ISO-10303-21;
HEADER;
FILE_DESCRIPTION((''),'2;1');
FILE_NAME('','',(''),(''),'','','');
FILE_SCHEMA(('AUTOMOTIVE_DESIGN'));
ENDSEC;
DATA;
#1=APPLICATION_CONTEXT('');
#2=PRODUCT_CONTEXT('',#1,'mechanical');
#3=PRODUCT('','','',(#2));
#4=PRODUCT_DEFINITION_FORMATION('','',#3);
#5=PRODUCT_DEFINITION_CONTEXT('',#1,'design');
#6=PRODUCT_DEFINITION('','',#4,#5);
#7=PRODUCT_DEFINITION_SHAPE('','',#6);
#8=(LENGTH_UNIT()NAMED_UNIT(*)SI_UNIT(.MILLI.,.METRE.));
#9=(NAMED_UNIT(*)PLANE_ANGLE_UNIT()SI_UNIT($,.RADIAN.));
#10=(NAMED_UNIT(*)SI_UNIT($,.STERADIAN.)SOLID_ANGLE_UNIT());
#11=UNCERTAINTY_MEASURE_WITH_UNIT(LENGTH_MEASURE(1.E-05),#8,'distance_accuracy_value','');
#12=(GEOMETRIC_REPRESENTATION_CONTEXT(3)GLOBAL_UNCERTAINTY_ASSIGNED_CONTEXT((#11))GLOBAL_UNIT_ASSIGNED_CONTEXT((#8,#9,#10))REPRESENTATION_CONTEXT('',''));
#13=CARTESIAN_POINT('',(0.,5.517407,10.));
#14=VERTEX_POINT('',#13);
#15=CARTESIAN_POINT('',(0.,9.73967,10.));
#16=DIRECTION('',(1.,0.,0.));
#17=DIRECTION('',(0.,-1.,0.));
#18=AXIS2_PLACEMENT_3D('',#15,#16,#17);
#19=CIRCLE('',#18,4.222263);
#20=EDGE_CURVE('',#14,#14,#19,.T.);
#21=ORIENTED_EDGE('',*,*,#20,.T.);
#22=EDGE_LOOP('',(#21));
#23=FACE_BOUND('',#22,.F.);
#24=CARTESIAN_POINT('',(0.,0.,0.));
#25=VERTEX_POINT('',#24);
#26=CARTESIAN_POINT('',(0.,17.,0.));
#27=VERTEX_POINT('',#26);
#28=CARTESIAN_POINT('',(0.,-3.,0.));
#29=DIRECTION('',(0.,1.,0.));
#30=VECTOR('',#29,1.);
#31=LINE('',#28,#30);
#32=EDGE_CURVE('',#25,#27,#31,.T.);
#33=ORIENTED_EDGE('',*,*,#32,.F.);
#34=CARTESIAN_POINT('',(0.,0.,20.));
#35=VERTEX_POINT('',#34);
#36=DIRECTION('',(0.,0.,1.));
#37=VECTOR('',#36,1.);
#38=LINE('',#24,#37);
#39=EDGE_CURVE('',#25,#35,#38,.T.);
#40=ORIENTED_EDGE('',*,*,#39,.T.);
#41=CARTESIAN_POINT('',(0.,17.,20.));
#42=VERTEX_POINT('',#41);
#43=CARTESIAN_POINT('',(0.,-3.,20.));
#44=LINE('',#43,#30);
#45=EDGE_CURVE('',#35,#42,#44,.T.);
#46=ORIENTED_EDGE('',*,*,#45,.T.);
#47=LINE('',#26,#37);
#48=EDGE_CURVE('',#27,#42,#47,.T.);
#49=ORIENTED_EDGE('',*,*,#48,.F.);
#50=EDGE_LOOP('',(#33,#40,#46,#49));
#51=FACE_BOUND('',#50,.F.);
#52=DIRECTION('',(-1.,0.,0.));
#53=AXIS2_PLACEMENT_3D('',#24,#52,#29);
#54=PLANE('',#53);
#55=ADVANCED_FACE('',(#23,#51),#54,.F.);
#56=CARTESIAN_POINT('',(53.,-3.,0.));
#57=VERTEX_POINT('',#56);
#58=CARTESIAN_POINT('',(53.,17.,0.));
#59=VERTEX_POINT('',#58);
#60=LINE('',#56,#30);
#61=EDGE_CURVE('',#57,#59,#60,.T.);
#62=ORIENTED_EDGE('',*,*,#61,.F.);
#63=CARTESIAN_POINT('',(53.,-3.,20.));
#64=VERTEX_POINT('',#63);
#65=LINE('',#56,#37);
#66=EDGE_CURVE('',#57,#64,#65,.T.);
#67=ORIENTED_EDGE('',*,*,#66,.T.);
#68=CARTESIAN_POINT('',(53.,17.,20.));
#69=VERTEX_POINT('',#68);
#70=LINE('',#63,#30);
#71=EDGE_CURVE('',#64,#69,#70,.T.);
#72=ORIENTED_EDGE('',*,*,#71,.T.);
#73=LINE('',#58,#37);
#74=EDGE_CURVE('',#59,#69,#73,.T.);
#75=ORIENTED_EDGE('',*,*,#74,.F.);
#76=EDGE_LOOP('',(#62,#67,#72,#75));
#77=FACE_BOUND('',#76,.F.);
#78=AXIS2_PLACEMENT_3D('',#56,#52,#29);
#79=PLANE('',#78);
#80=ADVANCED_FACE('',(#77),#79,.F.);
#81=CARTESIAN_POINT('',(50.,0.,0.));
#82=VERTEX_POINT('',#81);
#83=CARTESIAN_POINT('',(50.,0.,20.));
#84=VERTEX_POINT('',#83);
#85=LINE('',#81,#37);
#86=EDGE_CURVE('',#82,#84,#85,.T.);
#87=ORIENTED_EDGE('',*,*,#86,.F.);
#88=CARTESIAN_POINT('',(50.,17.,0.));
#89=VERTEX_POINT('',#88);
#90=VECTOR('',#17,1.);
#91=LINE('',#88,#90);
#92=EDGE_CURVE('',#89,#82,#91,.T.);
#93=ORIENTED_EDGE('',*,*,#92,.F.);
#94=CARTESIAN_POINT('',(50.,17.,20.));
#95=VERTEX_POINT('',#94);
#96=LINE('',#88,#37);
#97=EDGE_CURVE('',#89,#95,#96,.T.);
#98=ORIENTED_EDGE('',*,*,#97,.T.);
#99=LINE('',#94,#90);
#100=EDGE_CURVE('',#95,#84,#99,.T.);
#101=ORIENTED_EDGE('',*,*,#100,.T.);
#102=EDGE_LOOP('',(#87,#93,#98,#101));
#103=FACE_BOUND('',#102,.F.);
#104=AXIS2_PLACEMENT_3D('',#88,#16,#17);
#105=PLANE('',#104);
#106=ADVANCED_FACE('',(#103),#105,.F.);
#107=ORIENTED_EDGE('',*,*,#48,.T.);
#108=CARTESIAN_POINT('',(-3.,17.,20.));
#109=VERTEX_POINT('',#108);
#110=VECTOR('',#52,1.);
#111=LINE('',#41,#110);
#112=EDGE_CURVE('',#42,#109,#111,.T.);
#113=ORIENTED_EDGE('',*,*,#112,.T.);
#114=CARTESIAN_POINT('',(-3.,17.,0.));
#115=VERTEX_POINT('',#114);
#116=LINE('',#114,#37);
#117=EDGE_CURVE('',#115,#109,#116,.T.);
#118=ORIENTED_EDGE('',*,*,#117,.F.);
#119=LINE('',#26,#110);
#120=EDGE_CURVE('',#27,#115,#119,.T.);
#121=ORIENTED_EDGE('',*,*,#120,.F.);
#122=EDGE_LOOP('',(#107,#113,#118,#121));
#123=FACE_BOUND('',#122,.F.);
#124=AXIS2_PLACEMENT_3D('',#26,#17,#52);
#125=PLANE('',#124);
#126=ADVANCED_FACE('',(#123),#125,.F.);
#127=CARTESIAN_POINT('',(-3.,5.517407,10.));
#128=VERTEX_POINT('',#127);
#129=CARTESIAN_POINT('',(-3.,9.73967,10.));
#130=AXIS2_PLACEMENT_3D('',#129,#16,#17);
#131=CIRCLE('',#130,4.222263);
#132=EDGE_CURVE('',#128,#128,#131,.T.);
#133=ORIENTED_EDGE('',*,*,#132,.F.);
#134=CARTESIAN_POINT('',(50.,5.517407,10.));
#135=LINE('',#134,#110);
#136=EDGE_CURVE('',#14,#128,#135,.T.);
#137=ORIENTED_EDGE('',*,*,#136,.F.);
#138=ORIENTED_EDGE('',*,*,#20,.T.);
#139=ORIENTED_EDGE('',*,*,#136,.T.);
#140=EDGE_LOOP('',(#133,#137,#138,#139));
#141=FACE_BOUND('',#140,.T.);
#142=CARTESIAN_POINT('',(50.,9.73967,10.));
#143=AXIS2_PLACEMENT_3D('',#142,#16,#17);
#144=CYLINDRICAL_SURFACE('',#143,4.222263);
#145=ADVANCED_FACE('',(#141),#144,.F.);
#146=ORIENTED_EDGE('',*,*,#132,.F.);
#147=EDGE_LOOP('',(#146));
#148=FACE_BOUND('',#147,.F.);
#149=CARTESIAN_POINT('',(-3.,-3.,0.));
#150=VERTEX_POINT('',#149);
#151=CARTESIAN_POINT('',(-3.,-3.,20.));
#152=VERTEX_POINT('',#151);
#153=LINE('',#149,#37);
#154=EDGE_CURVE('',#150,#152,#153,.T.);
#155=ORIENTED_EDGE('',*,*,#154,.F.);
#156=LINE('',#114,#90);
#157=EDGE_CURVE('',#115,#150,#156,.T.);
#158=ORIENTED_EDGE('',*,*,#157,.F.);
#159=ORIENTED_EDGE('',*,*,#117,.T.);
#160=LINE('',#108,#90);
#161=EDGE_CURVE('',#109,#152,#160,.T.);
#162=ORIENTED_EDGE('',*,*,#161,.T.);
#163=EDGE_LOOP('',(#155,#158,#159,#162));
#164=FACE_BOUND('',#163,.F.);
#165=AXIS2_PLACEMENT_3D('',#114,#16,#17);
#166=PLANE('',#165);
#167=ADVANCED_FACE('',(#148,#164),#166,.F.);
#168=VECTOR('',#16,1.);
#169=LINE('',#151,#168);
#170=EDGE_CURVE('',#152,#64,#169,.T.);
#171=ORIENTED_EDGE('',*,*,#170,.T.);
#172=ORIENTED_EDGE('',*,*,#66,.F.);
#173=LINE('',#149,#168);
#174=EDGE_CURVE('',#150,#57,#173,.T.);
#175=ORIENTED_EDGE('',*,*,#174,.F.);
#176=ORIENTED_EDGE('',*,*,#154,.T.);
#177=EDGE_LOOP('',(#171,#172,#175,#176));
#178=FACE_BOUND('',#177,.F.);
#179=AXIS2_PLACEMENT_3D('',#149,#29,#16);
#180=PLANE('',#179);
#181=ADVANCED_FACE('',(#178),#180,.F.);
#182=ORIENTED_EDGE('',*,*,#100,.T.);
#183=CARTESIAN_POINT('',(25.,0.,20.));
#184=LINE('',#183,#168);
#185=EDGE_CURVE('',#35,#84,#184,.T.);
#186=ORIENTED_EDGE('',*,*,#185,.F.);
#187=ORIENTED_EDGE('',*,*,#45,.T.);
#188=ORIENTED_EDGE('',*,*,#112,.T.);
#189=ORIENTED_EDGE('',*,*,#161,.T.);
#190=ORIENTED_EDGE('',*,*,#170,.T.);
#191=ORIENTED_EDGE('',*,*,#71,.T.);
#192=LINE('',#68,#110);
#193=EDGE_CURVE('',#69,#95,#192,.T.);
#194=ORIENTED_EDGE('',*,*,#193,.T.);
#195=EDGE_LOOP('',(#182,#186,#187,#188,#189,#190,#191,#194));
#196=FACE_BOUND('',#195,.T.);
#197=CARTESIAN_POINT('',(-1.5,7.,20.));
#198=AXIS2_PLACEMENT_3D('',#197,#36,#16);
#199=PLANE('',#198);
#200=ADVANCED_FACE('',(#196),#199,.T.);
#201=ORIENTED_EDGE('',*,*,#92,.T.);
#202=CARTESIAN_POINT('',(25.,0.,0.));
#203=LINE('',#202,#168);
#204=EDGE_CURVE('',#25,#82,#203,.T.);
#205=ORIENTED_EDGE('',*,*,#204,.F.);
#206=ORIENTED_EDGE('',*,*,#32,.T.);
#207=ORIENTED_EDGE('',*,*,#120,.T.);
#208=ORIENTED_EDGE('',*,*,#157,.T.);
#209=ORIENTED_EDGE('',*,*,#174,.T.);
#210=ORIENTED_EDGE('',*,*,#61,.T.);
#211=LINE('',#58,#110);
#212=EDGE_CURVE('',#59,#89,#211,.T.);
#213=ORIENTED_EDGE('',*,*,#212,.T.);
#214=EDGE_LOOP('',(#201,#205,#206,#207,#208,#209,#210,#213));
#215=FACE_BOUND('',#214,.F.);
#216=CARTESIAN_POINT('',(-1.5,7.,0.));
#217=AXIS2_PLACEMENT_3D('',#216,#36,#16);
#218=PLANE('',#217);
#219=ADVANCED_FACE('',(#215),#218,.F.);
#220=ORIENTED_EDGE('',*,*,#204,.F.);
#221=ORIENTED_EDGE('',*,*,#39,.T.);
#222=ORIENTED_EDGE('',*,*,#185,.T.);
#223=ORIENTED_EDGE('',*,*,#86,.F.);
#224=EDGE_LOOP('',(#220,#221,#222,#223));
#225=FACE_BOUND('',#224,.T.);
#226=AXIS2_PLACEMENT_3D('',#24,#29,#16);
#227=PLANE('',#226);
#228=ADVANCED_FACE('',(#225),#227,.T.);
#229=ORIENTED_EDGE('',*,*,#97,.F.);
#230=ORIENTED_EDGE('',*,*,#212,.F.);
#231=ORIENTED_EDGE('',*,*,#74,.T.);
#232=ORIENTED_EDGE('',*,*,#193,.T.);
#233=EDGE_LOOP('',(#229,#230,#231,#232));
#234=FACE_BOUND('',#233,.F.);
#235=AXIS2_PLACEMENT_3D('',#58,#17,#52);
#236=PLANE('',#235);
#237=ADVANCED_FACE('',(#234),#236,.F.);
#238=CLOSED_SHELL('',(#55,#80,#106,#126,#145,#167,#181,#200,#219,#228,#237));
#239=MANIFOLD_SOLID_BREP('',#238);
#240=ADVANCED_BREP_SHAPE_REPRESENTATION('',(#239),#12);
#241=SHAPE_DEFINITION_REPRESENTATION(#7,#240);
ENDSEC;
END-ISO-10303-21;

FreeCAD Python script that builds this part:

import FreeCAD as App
import Part
import Sketcher
from FreeCAD import Vector

doc = App.newDocument("Part")
body = doc.addObject("PartDesign::Body", "Body")

# Sketch on XY plane
sketch1 = body.newObject("Sketcher::SketchObject", "Sketch")
sketch1.AttachmentSupport = (doc.getObject("XY_Plane"), [""])
sketch1.MapMode = "FlatFace"
sketch1.addGeometry(Part.LineSegment(Vector(0, 0, 0), Vector(0, 17, 0)), False)
sketch1.addGeometry(Part.LineSegment(Vector(0, 17, 0), Vector(-3, 17, 0)), False)
sketch1.addGeometry(Part.LineSegment(Vector(-3, 17, 0), Vector(-3, -3, 0)), False)
sketch1.addGeometry(Part.LineSegment(Vector(-3, -3, 0), Vector(53, -3, 0)), False)
sketch1.addGeometry(Part.LineSegment(Vector(53, -3, 0), Vector(53, 17, 0)), False)
sketch1.addGeometry(Part.LineSegment(Vector(53, 17, 0), Vector(50, 17, 0)), False)
sketch1.addGeometry(Part.LineSegment(Vector(50, 17, 0), Vector(50, 0, 0)), False)
sketch1.addGeometry(Part.LineSegment(Vector(50, 0, 0), Vector(0, 0, 0)), False)
sketch1.addConstraint(Sketcher.Constraint("Coincident", 0, 2, 1, 1))
sketch1.addConstraint(Sketcher.Constraint("Coincident", 1, 2, 2, 1))
sketch1.addConstraint(Sketcher.Constraint("Coincident", 2, 2, 3, 1))
sketch1.addConstraint(Sketcher.Constraint("Coincident", 3, 2, 4, 1))
sketch1.addConstraint(Sketcher.Constraint("Coincident", 4, 2, 5, 1))
sketch1.addConstraint(Sketcher.Constraint("Coincident", 5, 2, 6, 1))
sketch1.addConstraint(Sketcher.Constraint("Coincident", 6, 2, 7, 1))
sketch1.addConstraint(Sketcher.Constraint("Coincident", 7, 2, 0, 1))
sketch1.addConstraint(Sketcher.Constraint("Vertical", 0))
sketch1.addConstraint(Sketcher.Constraint("Horizontal", 1))
sketch1.addConstraint(Sketcher.Constraint("Vertical", 2))
sketch1.addConstraint(Sketcher.Constraint("Horizontal", 3))
sketch1.addConstraint(Sketcher.Constraint("Vertical", 4))
sketch1.addConstraint(Sketcher.Constraint("Horizontal", 5))
sketch1.addConstraint(Sketcher.Constraint("Vertical", 6))
sketch1.addConstraint(Sketcher.Constraint("Horizontal", 7))
sketch1.addConstraint(Sketcher.Constraint("Coincident", 7, 2, -1, 1))
sketch1.addConstraint(Sketcher.Constraint("Horizontal", 1, 2, 4, 2))
sketch1.addConstraint(Sketcher.Constraint("Equal", 1, 5))
sketch1.addConstraint(Sketcher.Constraint("DistanceX", 1, 2, 1, 1, 3.0))
sketch1.addConstraint(Sketcher.Constraint("DistanceX", 3, 1, 3, 2, 56.0))
sketch1.addConstraint(Sketcher.Constraint("DistanceY", 0, 1, 0, 2, 17.0))
sketch1.addConstraint(Sketcher.Constraint("DistanceY", 2, 2, 2, 1, 20.0))
pad1 = body.newObject("PartDesign::Pad", "Pad")
pad1.Profile = sketch1
pad1.Length = 20

# Sketch on YZ plane
sketch2 = body.newObject("Sketcher::SketchObject", "Sketch001")
sketch2.AttachmentSupport = (doc.getObject("YZ_Plane"), [""])
sketch2.MapMode = "FlatFace"
sketch2.AttachmentOffset = App.Placement(Vector(0, 0, 50), App.Rotation())
sketch2.addGeometry(Part.Circle(Vector(9.7, 10, 0), Vector(0, 0, 1), 4.2), False)
sketch2.addConstraint(Sketcher.Constraint("DistanceY", -1, 1, 0, 3, 10.0))
sketch2.addConstraint(Sketcher.Constraint("Diameter", 0, 8.444526))
sketch2.addConstraint(Sketcher.Constraint("DistanceX", -1, 1, 0, 3, 9.73967))
pocket1 = body.newObject("PartDesign::Pocket", "Pocket")
pocket1.Profile = sketch2
pocket1.Length = 98.7

doc.recompute()
